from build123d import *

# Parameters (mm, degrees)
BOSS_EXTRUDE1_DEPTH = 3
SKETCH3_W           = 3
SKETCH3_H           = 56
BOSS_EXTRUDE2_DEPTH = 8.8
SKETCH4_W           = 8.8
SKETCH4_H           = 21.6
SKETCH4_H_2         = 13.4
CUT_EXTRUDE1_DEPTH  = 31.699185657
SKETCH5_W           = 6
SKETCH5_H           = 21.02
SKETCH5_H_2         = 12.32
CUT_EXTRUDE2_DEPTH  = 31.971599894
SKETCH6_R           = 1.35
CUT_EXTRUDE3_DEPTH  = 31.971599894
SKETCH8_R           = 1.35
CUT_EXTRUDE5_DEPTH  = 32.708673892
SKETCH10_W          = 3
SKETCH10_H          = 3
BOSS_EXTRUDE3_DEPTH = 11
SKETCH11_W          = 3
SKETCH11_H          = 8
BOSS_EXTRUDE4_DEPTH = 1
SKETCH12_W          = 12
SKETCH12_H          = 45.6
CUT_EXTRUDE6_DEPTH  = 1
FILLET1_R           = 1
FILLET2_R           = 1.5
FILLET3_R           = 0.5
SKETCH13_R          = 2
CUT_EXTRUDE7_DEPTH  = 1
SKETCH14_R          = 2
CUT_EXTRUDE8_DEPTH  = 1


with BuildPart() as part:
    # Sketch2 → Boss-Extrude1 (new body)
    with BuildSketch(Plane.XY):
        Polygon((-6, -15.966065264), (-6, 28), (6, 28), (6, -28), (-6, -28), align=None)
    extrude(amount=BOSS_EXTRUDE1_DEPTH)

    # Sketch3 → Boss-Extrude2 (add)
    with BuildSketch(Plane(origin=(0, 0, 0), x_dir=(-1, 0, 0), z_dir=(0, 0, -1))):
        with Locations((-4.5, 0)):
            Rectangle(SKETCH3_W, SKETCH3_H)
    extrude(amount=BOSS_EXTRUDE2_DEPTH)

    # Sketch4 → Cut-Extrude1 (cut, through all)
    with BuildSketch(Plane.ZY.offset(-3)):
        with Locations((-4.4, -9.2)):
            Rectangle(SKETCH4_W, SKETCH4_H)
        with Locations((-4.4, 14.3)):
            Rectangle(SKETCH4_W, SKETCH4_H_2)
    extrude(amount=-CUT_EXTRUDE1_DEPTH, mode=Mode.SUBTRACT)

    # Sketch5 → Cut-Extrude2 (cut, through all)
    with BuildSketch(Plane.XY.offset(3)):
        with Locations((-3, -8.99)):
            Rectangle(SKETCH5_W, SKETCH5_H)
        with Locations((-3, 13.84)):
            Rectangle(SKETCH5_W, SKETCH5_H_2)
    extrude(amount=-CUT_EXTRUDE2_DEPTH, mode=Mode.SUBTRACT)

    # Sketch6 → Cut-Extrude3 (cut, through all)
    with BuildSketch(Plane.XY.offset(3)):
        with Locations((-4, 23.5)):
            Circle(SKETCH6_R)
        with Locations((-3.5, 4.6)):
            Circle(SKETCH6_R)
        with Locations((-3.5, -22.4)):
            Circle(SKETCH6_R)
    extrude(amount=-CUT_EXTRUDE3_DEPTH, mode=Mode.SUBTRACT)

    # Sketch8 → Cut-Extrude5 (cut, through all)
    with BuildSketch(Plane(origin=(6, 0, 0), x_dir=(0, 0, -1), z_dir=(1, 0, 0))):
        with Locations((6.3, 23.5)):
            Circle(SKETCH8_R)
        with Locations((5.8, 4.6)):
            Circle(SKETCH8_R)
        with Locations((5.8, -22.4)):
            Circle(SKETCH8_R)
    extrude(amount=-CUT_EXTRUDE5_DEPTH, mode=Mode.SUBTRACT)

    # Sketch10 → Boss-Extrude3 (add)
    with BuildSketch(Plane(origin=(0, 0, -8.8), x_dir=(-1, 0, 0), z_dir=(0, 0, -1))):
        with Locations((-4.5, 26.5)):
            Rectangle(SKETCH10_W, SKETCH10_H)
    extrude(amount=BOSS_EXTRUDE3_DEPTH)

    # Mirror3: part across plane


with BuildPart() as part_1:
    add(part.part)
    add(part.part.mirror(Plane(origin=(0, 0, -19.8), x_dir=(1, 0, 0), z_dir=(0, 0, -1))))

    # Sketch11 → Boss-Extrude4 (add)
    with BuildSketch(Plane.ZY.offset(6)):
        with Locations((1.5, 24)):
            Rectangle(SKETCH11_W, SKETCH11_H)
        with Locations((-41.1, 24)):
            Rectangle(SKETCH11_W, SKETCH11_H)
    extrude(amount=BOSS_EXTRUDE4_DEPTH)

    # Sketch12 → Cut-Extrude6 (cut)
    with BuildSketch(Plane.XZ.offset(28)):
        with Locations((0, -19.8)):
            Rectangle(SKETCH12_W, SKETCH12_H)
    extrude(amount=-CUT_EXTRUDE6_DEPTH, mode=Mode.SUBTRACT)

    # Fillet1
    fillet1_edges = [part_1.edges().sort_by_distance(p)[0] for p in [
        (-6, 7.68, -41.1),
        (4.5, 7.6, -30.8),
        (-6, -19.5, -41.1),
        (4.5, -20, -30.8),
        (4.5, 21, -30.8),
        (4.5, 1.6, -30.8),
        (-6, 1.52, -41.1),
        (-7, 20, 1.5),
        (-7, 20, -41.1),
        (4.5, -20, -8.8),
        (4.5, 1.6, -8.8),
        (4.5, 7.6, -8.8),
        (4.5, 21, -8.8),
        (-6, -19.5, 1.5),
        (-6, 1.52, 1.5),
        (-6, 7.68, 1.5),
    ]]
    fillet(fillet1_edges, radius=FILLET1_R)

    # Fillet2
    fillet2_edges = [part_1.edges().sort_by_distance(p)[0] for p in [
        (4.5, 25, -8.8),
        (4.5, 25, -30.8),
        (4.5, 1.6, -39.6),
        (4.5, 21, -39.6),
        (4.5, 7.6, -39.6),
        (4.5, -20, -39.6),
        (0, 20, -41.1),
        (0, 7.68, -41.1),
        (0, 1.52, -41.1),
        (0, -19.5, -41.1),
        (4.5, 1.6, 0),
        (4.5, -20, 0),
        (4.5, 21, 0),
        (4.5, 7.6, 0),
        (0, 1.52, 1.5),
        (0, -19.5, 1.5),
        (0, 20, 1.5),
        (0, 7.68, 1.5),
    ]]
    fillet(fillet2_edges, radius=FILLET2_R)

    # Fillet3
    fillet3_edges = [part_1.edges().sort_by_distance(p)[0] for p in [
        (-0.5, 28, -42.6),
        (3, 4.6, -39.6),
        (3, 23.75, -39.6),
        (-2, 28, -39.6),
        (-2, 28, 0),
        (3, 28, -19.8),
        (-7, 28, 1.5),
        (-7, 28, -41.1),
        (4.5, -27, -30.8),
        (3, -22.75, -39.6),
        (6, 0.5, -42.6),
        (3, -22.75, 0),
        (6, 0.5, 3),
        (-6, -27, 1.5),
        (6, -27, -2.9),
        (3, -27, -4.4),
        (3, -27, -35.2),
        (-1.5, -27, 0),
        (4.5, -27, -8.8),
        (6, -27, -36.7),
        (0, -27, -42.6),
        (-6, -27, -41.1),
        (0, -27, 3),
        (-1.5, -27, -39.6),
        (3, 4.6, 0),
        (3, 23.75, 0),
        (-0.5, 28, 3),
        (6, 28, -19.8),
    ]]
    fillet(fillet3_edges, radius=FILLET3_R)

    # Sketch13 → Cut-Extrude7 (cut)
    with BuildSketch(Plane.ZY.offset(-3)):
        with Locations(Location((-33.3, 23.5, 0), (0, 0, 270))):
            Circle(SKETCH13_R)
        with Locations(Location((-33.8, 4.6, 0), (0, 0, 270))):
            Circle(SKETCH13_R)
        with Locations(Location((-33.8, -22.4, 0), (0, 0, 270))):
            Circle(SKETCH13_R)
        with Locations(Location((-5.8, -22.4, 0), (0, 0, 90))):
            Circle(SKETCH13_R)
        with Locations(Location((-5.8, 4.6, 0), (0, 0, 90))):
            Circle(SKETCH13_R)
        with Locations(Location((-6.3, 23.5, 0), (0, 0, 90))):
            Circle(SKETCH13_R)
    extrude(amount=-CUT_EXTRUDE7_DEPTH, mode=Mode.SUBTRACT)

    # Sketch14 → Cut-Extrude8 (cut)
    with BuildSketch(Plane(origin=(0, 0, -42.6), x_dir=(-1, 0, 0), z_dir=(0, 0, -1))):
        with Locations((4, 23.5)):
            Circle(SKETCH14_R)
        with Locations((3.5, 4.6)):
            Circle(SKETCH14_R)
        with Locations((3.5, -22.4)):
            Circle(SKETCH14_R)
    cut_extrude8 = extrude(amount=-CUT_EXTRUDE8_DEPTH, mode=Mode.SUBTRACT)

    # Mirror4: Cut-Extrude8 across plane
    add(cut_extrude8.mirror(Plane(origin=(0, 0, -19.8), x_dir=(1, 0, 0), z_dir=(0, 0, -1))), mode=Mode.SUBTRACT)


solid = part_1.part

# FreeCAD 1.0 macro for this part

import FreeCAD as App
import Part
import Sketcher


def edges_at(feature, points):
    """Names of the edges that pass closest to the given points."""
    edges = feature.Shape.Edges
    near = lambda p: min(range(len(edges)), key=lambda i: edges[i].distToShape(Part.Vertex(*p))[0])
    return sorted({f"Edge{near(p) + 1}" for p in points})

doc = App.newDocument("Part")
body = doc.addObject("PartDesign::Body", "Body")

# Sketch on XY plane
sketch1 = body.newObject("Sketcher::SketchObject", "Sketch")
sketch1.AttachmentSupport = (doc.getObject("XY_Plane"), [""])
sketch1.MapMode = "FlatFace"
sketch1.addGeometry([
    Part.LineSegment(App.Vector(-6, 28, 0), App.Vector(-6, -28, 0)),
    Part.LineSegment(App.Vector(-6, -28, 0), App.Vector(6, -28, 0)),
    Part.LineSegment(App.Vector(6, -28, 0), App.Vector(6, 28, 0)),
    Part.LineSegment(App.Vector(6, 28, 0), App.Vector(-6, 28, 0)),
], False)
sketch1.addConstraint([
    Sketcher.Constraint("Coincident", 0, 2, 1, 1),
    Sketcher.Constraint("Coincident", 1, 2, 2, 1),
    Sketcher.Constraint("Coincident", 2, 2, 3, 1),
    Sketcher.Constraint("Coincident", 3, 2, 0, 1),
    Sketcher.Constraint("Vertical", 0),
    Sketcher.Constraint("Horizontal", 1),
    Sketcher.Constraint("Vertical", 2),
    Sketcher.Constraint("Horizontal", 3),
    Sketcher.Constraint("Symmetric", 0, 2, 2, 2, -1, 1),
    Sketcher.Constraint("DistanceX", 1, 1, 1, 2, 12.0),
    Sketcher.Constraint("DistanceY", 0, 2, 0, 1, 56.0),
])
pad1 = body.newObject("PartDesign::Pad", "Pad")
pad1.Profile = sketch1
pad1.Length = 3

# Sketch on XY plane
sketch2 = body.newObject("Sketcher::SketchObject", "Sketch001")
sketch2.AttachmentSupport = (doc.getObject("XY_Plane"), [""])
sketch2.MapMode = "FlatFace"
sketch2.addGeometry([
    Part.LineSegment(App.Vector(6, 28, 0), App.Vector(6, -28, 0)),
    Part.LineSegment(App.Vector(6, -28, 0), App.Vector(3, -28, 0)),
    Part.LineSegment(App.Vector(3, -28, 0), App.Vector(3, 28, 0)),
    Part.LineSegment(App.Vector(3, 28, 0), App.Vector(6, 28, 0)),
], False)
sketch2.addConstraint([
    Sketcher.Constraint("Coincident", 0, 2, 1, 1),
    Sketcher.Constraint("Coincident", 1, 2, 2, 1),
    Sketcher.Constraint("Coincident", 2, 2, 3, 1),
    Sketcher.Constraint("Coincident", 3, 2, 0, 1),
    Sketcher.Constraint("Vertical", 0),
    Sketcher.Constraint("Horizontal", 1),
    Sketcher.Constraint("Vertical", 2),
    Sketcher.Constraint("Horizontal", 3),
    Sketcher.Constraint("DistanceX", 1, 2, 1, 1, 3.0),
    Sketcher.Constraint("DistanceY", 0, 2, 0, 1, 56.0),
    Sketcher.Constraint("DistanceX", -1, 1, 0, 2, 6.0),
    Sketcher.Constraint("DistanceY", 0, 2, -1, 1, 28.0),
])
pad2 = body.newObject("PartDesign::Pad", "Pad001")
pad2.Profile = sketch2
pad2.Length = 8.8
pad2.Reversed = True

# Sketch on YZ plane
sketch3 = body.newObject("Sketcher::SketchObject", "Sketch002")
sketch3.AttachmentSupport = (doc.getObject("YZ_Plane"), [""])
sketch3.MapMode = "FlatFace"
sketch3.AttachmentOffset = App.Placement(App.Vector(0, 0, 3), App.Rotation())
sketch3.addGeometry([
    Part.LineSegment(App.Vector(2, -9, 0), App.Vector(-20, -9, 0)),  # 0
    Part.LineSegment(App.Vector(-20, -9, 0), App.Vector(-20, 0, 0)),  # 1
    Part.LineSegment(App.Vector(-20, 0, 0), App.Vector(2, 0, 0)),  # 2
    Part.LineSegment(App.Vector(2, 0, 0), App.Vector(2, -9, 0)),  # 3
    Part.LineSegment(App.Vector(21, -9, 0), App.Vector(8, -9, 0)),  # 4
    Part.LineSegment(App.Vector(8, -9, 0), App.Vector(8, 0, 0)),  # 5
    Part.LineSegment(App.Vector(8, 0, 0), App.Vector(21, 0, 0)),  # 6
    Part.LineSegment(App.Vector(21, 0, 0), App.Vector(21, -9, 0)),  # 7
], False)
sketch3.addConstraint([
    Sketcher.Constraint("Coincident", 0, 2, 1, 1),
    Sketcher.Constraint("Coincident", 1, 2, 2, 1),
    Sketcher.Constraint("Coincident", 2, 2, 3, 1),
    Sketcher.Constraint("Coincident", 3, 2, 0, 1),
    Sketcher.Constraint("Coincident", 4, 2, 5, 1),
    Sketcher.Constraint("Coincident", 5, 2, 6, 1),
    Sketcher.Constraint("Coincident", 6, 2, 7, 1),
    Sketcher.Constraint("Coincident", 7, 2, 4, 1),
    Sketcher.Constraint("Horizontal", 0),
    Sketcher.Constraint("Vertical", 1),
    Sketcher.Constraint("Horizontal", 2),
    Sketcher.Constraint("Vertical", 3),
    Sketcher.Constraint("Horizontal", 4),
    Sketcher.Constraint("Vertical", 5),
    Sketcher.Constraint("Horizontal", 6),
    Sketcher.Constraint("Vertical", 7),
    Sketcher.Constraint("PointOnObject", 1, 2, -1),
    Sketcher.Constraint("PointOnObject", 5, 2, -1),
    Sketcher.Constraint("Horizontal", 3, 2, 4, 2),
    Sketcher.Constraint("DistanceX", 0, 2, 0, 1, 21.6),
    Sketcher.Constraint("DistanceX", 4, 2, 4, 1, 13.4),
    Sketcher.Constraint("DistanceY", 1, 1, 1, 2, 8.8),
    Sketcher.Constraint("DistanceX", 0, 2, -1, 1, 20.0),
    Sketcher.Constraint("DistanceX", -1, 1, 6, 2, 21.0),
])
pocket1 = body.newObject("PartDesign::Pocket", "Pocket")
pocket1.Profile = sketch3
pocket1.Type = "ThroughAll"
pocket1.Reversed = True

# Sketch on XY plane
sketch4 = body.newObject("Sketcher::SketchObject", "Sketch003")
sketch4.AttachmentSupport = (doc.getObject("XY_Plane"), [""])
sketch4.MapMode = "FlatFace"
sketch4.AttachmentOffset = App.Placement(App.Vector(0, 0, 3), App.Rotation())
sketch4.addGeometry([
    Part.LineSegment(App.Vector(-6, 2, 0), App.Vector(-6, -20, 0)),  # 0
    Part.LineSegment(App.Vector(-6, -20, 0), App.Vector(0, -20, 0)),  # 1
    Part.LineSegment(App.Vector(0, -20, 0), App.Vector(0, 2, 0)),  # 2
    Part.LineSegment(App.Vector(0, 2, 0), App.Vector(-6, 2, 0)),  # 3
    Part.LineSegment(App.Vector(-6, 20, 0), App.Vector(-6, 8, 0)),  # 4
    Part.LineSegment(App.Vector(-6, 8, 0), App.Vector(0, 8, 0)),  # 5
    Part.LineSegment(App.Vector(0, 8, 0), App.Vector(0, 20, 0)),  # 6
    Part.LineSegment(App.Vector(0, 20, 0), App.Vector(-6, 20, 0)),  # 7
], False)
sketch4.addConstraint([
    Sketcher.Constraint("Coincident", 0, 2, 1, 1),
    Sketcher.Constraint("Coincident", 1, 2, 2, 1),
    Sketcher.Constraint("Coincident", 2, 2, 3, 1),
    Sketcher.Constraint("Coincident", 3, 2, 0, 1),
    Sketcher.Constraint("Coincident", 4, 2, 5, 1),
    Sketcher.Constraint("Coincident", 5, 2, 6, 1),
    Sketcher.Constraint("Coincident", 6, 2, 7, 1),
    Sketcher.Constraint("Coincident", 7, 2, 4, 1),
    Sketcher.Constraint("Vertical", 0),
    Sketcher.Constraint("Horizontal", 1),
    Sketcher.Constraint("Vertical", 2),
    Sketcher.Constraint("Horizontal", 3),
    Sketcher.Constraint("Vertical", 4),
    Sketcher.Constraint("Horizontal", 5),
    Sketcher.Constraint("Vertical", 6),
    Sketcher.Constraint("Horizontal", 7),
    Sketcher.Constraint("PointOnObject", 1, 2, -2),
    Sketcher.Constraint("PointOnObject", 5, 2, -2),
    Sketcher.Constraint("Vertical", 3, 2, 4, 2),
    Sketcher.Constraint("DistanceX", 1, 1, 1, 2, 6.0),
    Sketcher.Constraint("DistanceY", -1, 1, 6, 2, 20.0),
    Sketcher.Constraint("DistanceY", 0, 2, 0, 1, 21.02),
    Sketcher.Constraint("DistanceY", 4, 2, 4, 1, 12.32),
    Sketcher.Constraint("DistanceY", 0, 2, -1, 1, 19.5),
])
pocket2 = body.newObject("PartDesign::Pocket", "Pocket001")
pocket2.Profile = sketch4
pocket2.Type = "ThroughAll"

# Sketch on XY plane
sketch5 = body.newObject("Sketcher::SketchObject", "Sketch004")
sketch5.AttachmentSupport = (doc.getObject("XY_Plane"), [""])
sketch5.MapMode = "FlatFace"
sketch5.AttachmentOffset = App.Placement(App.Vector(0, 0, 3), App.Rotation())
sketch5.addGeometry([
    Part.Circle(App.Vector(-4, 23.5, 0), App.Vector(0, 0, 1), 1.4),
    Part.Circle(App.Vector(-3.5, 4.6, 0), App.Vector(0, 0, 1), 1.4),
    Part.Circle(App.Vector(-3.5, -22.4, 0), App.Vector(0, 0, 1), 1.4),
], False)
sketch5.addConstraint([
    Sketcher.Constraint("Equal", 0, 1),
    Sketcher.Constraint("Equal", 1, 2),
    Sketcher.Constraint("Vertical", 1, 3, 2, 3),
    Sketcher.Constraint("Diameter", 0, 2.7),
    Sketcher.Constraint("DistanceX", 0, 3, -1, 1, 4.0),
    Sketcher.Constraint("DistanceY", 2, 3, 1, 3, 27.0),
    Sketcher.Constraint("DistanceY", -1, 1, 0, 3, 23.5),
    Sketcher.Constraint("DistanceX", 1, 3, -1, 1, 3.5),
    Sketcher.Constraint("DistanceY", -1, 1, 1, 3, 4.6),
])
pocket3 = body.newObject("PartDesign::Pocket", "Pocket002")
pocket3.Profile = sketch5
pocket3.Type = "ThroughAll"

# Sketch on YZ plane
sketch6 = body.newObject("Sketcher::SketchObject", "Sketch005")
sketch6.AttachmentSupport = (doc.getObject("YZ_Plane"), [""])
sketch6.MapMode = "FlatFace"
sketch6.AttachmentOffset = App.Placement(App.Vector(0, 0, 6), App.Rotation())
sketch6.addGeometry([
    Part.Circle(App.Vector(23.5, -6.3, 0), App.Vector(0, 0, 1), 1.4),
    Part.Circle(App.Vector(4.6, -5.8, 0), App.Vector(0, 0, 1), 1.4),
    Part.Circle(App.Vector(-22.4, -5.8, 0), App.Vector(0, 0, 1), 1.4),
], False)
sketch6.addConstraint([
    Sketcher.Constraint("Equal", 0, 1),
    Sketcher.Constraint("Equal", 1, 2),
    Sketcher.Constraint("Horizontal", 1, 3, 2, 3),
    Sketcher.Constraint("Diameter", 0, 2.7),
    Sketcher.Constraint("DistanceX", 2, 3, 1, 3, 27.0),
    Sketcher.Constraint("DistanceX", -1, 1, 0, 3, 23.5),
    Sketcher.Constraint("DistanceY", 0, 3, -1, 1, 6.3),
    Sketcher.Constraint("DistanceX", -1, 1, 1, 3, 4.6),
    Sketcher.Constraint("DistanceY", 1, 3, -1, 1, 5.8),
])
pocket4 = body.newObject("PartDesign::Pocket", "Pocket003")
pocket4.Profile = sketch6
pocket4.Type = "ThroughAll"

# Sketch on XY plane
sketch7 = body.newObject("Sketcher::SketchObject", "Sketch006")
sketch7.AttachmentSupport = (doc.getObject("XY_Plane"), [""])
sketch7.MapMode = "FlatFace"
sketch7.AttachmentOffset = App.Placement(App.Vector(0, 0, -8.8), App.Rotation())
sketch7.addGeometry([
    Part.LineSegment(App.Vector(6, 28, 0), App.Vector(6, 25, 0)),
    Part.LineSegment(App.Vector(6, 25, 0), App.Vector(3, 25, 0)),
    Part.LineSegment(App.Vector(3, 25, 0), App.Vector(3, 28, 0)),
    Part.LineSegment(App.Vector(3, 28, 0), App.Vector(6, 28, 0)),
], False)
sketch7.addConstraint([
    Sketcher.Constraint("Coincident", 0, 2, 1, 1),
    Sketcher.Constraint("Coincident", 1, 2, 2, 1),
    Sketcher.Constraint("Coincident", 2, 2, 3, 1),
    Sketcher.Constraint("Coincident", 3, 2, 0, 1),
    Sketcher.Constraint("Vertical", 0),
    Sketcher.Constraint("Horizontal", 1),
    Sketcher.Constraint("Vertical", 2),
    Sketcher.Constraint("Horizontal", 3),
    Sketcher.Constraint("Equal", 3, 0),
    Sketcher.Constraint("DistanceX", 1, 2, 1, 1, 3.0),
    Sketcher.Constraint("DistanceX", -1, 1, 0, 2, 6.0),
    Sketcher.Constraint("DistanceY", -1, 1, 0, 2, 25.0),
])
pad3 = body.newObject("PartDesign::Pad", "Pad002")
pad3.Profile = sketch7
pad3.Length = 11
pad3.Reversed = True
body2 = doc.addObject("PartDesign::Body", "Body001")
doc.recompute()

body2.BaseFeature = body
doc.recompute()

mirroring = doc.addObject("Part::Mirroring", "Mirroring")
mirroring.Source = body
mirroring.Base = App.Vector(0, 0, -19.8)
mirroring.Normal = App.Vector(0, 0, -1)
body3 = doc.addObject("PartDesign::Body", "Body002")
body3.BaseFeature = mirroring
boolean = body2.newObject("PartDesign::Boolean", "Boolean")
boolean.Type = "Fuse"
boolean.addObjects([body3])
doc.recompute()

# Sketch on YZ plane
sketch8 = body2.newObject("Sketcher::SketchObject", "Sketch007")
sketch8.AttachmentSupport = (doc.getObject("YZ_Plane001"), [""])
sketch8.MapMode = "FlatFace"
sketch8.AttachmentOffset = App.Placement(App.Vector(0, 0, -6), App.Rotation())
sketch8.addGeometry([
    Part.LineSegment(App.Vector(28, 0, 0), App.Vector(20, 0, 0)),  # 0
    Part.LineSegment(App.Vector(20, 0, 0), App.Vector(20, 3, 0)),  # 1
    Part.LineSegment(App.Vector(20, 3, 0), App.Vector(28, 3, 0)),  # 2
    Part.LineSegment(App.Vector(28, 3, 0), App.Vector(28, 0, 0)),  # 3
    Part.LineSegment(App.Vector(28, -42.6, 0), App.Vector(20, -42.6, 0)),  # 4
    Part.LineSegment(App.Vector(20, -42.6, 0), App.Vector(20, -39.6, 0)),  # 5
    Part.LineSegment(App.Vector(20, -39.6, 0), App.Vector(28, -39.6, 0)),  # 6
    Part.LineSegment(App.Vector(28, -39.6, 0), App.Vector(28, -42.6, 0)),  # 7
], False)
sketch8.addConstraint([
    Sketcher.Constraint("Coincident", 0, 2, 1, 1),
    Sketcher.Constraint("Coincident", 1, 2, 2, 1),
    Sketcher.Constraint("Coincident", 2, 2, 3, 1),
    Sketcher.Constraint("Coincident", 3, 2, 0, 1),
    Sketcher.Constraint("Coincident", 4, 2, 5, 1),
    Sketcher.Constraint("Coincident", 5, 2, 6, 1),
    Sketcher.Constraint("Coincident", 6, 2, 7, 1),
    Sketcher.Constraint("Coincident", 7, 2, 4, 1),
    Sketcher.Constraint("Horizontal", 0),
    Sketcher.Constraint("Vertical", 1),
    Sketcher.Constraint("Horizontal", 2),
    Sketcher.Constraint("Vertical", 3),
    Sketcher.Constraint("Horizontal", 4),
    Sketcher.Constraint("Vertical", 5),
    Sketcher.Constraint("Horizontal", 6),
    Sketcher.Constraint("Vertical", 7),
    Sketcher.Constraint("PointOnObject", 0, 2, -1),
    Sketcher.Constraint("Vertical", 1, 2, 4, 2),
    Sketcher.Constraint("Vertical", 3, 2, 6, 2),
    Sketcher.Constraint("Equal", 3, 5),
    Sketcher.Constraint("DistanceX", 0, 2, 0, 1, 8.0),
    Sketcher.Constraint("DistanceY", 1, 1, 1, 2, 3.0),
    Sketcher.Constraint("DistanceX", -1, 1, 0, 2, 20.0),
    Sketcher.Constraint("DistanceY", 4, 2, -1, 1, 42.6),
])
pad4 = body2.newObject("PartDesign::Pad", "Pad003")
pad4.Profile = sketch8
pad4.Length = 1
pad4.Reversed = True

# Sketch on XZ plane
sketch9 = body2.newObject("Sketcher::SketchObject", "Sketch008")
sketch9.AttachmentSupport = (doc.getObject("XZ_Plane001"), [""])
sketch9.MapMode = "FlatFace"
sketch9.AttachmentOffset = App.Placement(App.Vector(0, 0, 28), App.Rotation())
sketch9.addGeometry([
    Part.LineSegment(App.Vector(-6, 3, 0), App.Vector(-6, -43, 0)),
    Part.LineSegment(App.Vector(-6, -43, 0), App.Vector(6, -43, 0)),
    Part.LineSegment(App.Vector(6, -43, 0), App.Vector(6, 3, 0)),
    Part.LineSegment(App.Vector(6, 3, 0), App.Vector(-6, 3, 0)),
], False)
sketch9.addConstraint([
    Sketcher.Constraint("Coincident", 0, 2, 1, 1),
    Sketcher.Constraint("Coincident", 1, 2, 2, 1),
    Sketcher.Constraint("Coincident", 2, 2, 3, 1),
    Sketcher.Constraint("Coincident", 3, 2, 0, 1),
    Sketcher.Constraint("Vertical", 0),
    Sketcher.Constraint("Horizontal", 1),
    Sketcher.Constraint("Vertical", 2),
    Sketcher.Constraint("Horizontal", 3),
    Sketcher.Constraint("DistanceX", 1, 1, 1, 2, 12.0),
    Sketcher.Constraint("DistanceY", 0, 2, 0, 1, 45.6),
    Sketcher.Constraint("DistanceX", 0, 2, -1, 1, 6.0),
    Sketcher.Constraint("DistanceY", -1, 1, 2, 2, 3.0),
])
pocket5 = body2.newObject("PartDesign::Pocket", "Pocket004")
pocket5.Profile = sketch9
pocket5.Length = 1
doc.recompute()

fillet = body2.newObject("PartDesign::Fillet", "Fillet")
fillet.Base = (pocket5, edges_at(pocket5, [
    (-6, 7.68, -41.1),
    (4.5, 7.6, -30.8),
    (-6, -19.5, -41.1),
    (4.5, -20, -30.8),
    (4.5, 21, -30.8),
    (4.5, 1.6, -30.8),
    (-6, 1.52, -41.1),
    (-7, 20, 1.5),
    (-7, 20, -41.1),
    (4.5, -20, -8.8),
    (4.5, 1.6, -8.8),
    (4.5, 7.6, -8.8),
    (4.5, 21, -8.8),
    (-6, -19.5, 1.5),
    (-6, 1.52, 1.5),
    (-6, 7.68, 1.5),
]))
fillet.Radius = 1
doc.recompute()

fillet2 = body2.newObject("PartDesign::Fillet", "Fillet001")
fillet2.Base = (fillet, edges_at(fillet, [
    (4.5, 25, -8.8),
    (4.5, 25, -30.8),
    (4.5, 1.6, -39.6),
    (4.5, 21, -39.6),
    (4.5, 7.6, -39.6),
    (4.5, -20, -39.6),
    (0, 20, -41.1),
    (0, 7.68, -41.1),
    (0, 1.52, -41.1),
    (0, -19.5, -41.1),
    (4.5, 1.6, 0),
    (4.5, -20, 0),
    (4.5, 21, 0),
    (4.5, 7.6, 0),
    (0, 1.52, 1.5),
    (0, -19.5, 1.5),
    (0, 20, 1.5),
    (0, 7.68, 1.5),
]))
fillet2.Radius = 1.5
doc.recompute()

fillet3 = body2.newObject("PartDesign::Fillet", "Fillet002")
fillet3.Base = (fillet2, edges_at(fillet2, [
    (-0.5, 28, -42.6),
    (3, 4.6, -39.6),
    (3, 23.75, -39.6),
    (-2, 28, -39.6),
    (-2, 28, 0),
    (3, 28, -19.8),
    (-7, 28, 1.5),
    (-7, 28, -41.1),
    (4.5, -27, -30.8),
    (3, -22.75, -39.6),
    (6, 0.5, -42.6),
    (3, -22.75, 0),
    (6, 0.5, 3),
    (-6, -27, 1.5),
    (6, -27, -2.9),
    (3, -27, -4.4),
    (3, -27, -35.2),
    (-1.5, -27, 0),
    (4.5, -27, -8.8),
    (6, -27, -36.7),
    (0, -27, -42.6),
    (-6, -27, -41.1),
    (0, -27, 3),
    (-1.5, -27, -39.6),
    (3, 4.6, 0),
    (3, 23.75, 0),
    (-0.5, 28, 3),
    (6, 28, -19.8),
]))
fillet3.Radius = 0.5

# Sketch on YZ plane
sketch10 = body2.newObject("Sketcher::SketchObject", "Sketch009")
sketch10.AttachmentSupport = (doc.getObject("YZ_Plane001"), [""])
sketch10.MapMode = "FlatFace"
sketch10.AttachmentOffset = App.Placement(App.Vector(0, 0, 3), App.Rotation())
sketch10.addGeometry([
    Part.Circle(App.Vector(23.5, -33.3, 0), App.Vector(0, 0, 1), 2),  # 0
    Part.Circle(App.Vector(4.6, -33.8, 0), App.Vector(0, 0, 1), 2),  # 1
    Part.Circle(App.Vector(-22.4, -33.8, 0), App.Vector(0, 0, 1), 2),  # 2
    Part.Circle(App.Vector(-22.4, -5.8, 0), App.Vector(0, 0, 1), 2),  # 3
    Part.Circle(App.Vector(4.6, -5.8, 0), App.Vector(0, 0, 1), 2),  # 4
    Part.Circle(App.Vector(23.5, -6.3, 0), App.Vector(0, 0, 1), 2),  # 5
], False)
sketch10.addConstraint([
    Sketcher.Constraint("Equal", 0, 1),
    Sketcher.Constraint("Equal", 1, 2),
    Sketcher.Constraint("Equal", 2, 3),
    Sketcher.Constraint("Equal", 3, 4),
    Sketcher.Constraint("Equal", 4, 5),
    Sketcher.Constraint("Horizontal", 1, 3, 2, 3),
    Sketcher.Constraint("Horizontal", 3, 3, 4, 3),
    Sketcher.Constraint("Vertical", 2, 3, 3, 3),
    Sketcher.Constraint("Vertical", 1, 3, 4, 3),
    Sketcher.Constraint("Vertical", 0, 3, 5, 3),
    Sketcher.Constraint("Diameter", 0, 4.0),
    Sketcher.Constraint("DistanceX", 2, 3, 1, 3, 27.0),
    Sketcher.Constraint("DistanceY", 2, 3, 3, 3, 28.0),
    Sketcher.Constraint("DistanceY", 0, 3, 5, 3, 27.0),
    Sketcher.Constraint("DistanceX", -1, 1, 0, 3, 23.5),
    Sketcher.Constraint("DistanceY", 0, 3, -1, 1, 33.3),
    Sketcher.Constraint("DistanceX", -1, 1, 1, 3, 4.6),
    Sketcher.Constraint("DistanceY", 1, 3, -1, 1, 33.8),
])
pocket6 = body2.newObject("PartDesign::Pocket", "Pocket005")
pocket6.Profile = sketch10
pocket6.Length = 1
pocket6.Reversed = True

# Sketch on XY plane
sketch11 = body2.newObject("Sketcher::SketchObject", "Sketch010")
sketch11.AttachmentSupport = (doc.getObject("XY_Plane001"), [""])
sketch11.MapMode = "FlatFace"
sketch11.AttachmentOffset = App.Placement(App.Vector(0, 0, -42.6), App.Rotation())
sketch11.addGeometry([
    Part.Circle(App.Vector(-4, 23.5, 0), App.Vector(0, 0, 1), 2),
    Part.Circle(App.Vector(-3.5, 4.6, 0), App.Vector(0, 0, 1), 2),
    Part.Circle(App.Vector(-3.5, -22.4, 0), App.Vector(0, 0, 1), 2),
], False)
sketch11.addConstraint([
    Sketcher.Constraint("Equal", 0, 1),
    Sketcher.Constraint("Equal", 1, 2),
    Sketcher.Constraint("Vertical", 1, 3, 2, 3),
    Sketcher.Constraint("Diameter", 0, 4.0),
    Sketcher.Constraint("DistanceX", 0, 3, -1, 1, 4.0),
    Sketcher.Constraint("DistanceY", 2, 3, 1, 3, 27.0),
    Sketcher.Constraint("DistanceY", -1, 1, 0, 3, 23.5),
    Sketcher.Constraint("DistanceX", 1, 3, -1, 1, 3.5),
    Sketcher.Constraint("DistanceY", -1, 1, 1, 3, 4.6),
])
pocket7 = body2.newObject("PartDesign::Pocket", "Pocket006")
pocket7.Profile = sketch11
pocket7.Length = 1
pocket7.Reversed = True
doc.recompute()

datumplane = body2.newObject("PartDesign::Plane", "DatumPlane")
datumplane.AttachmentSupport = (doc.getObject("XY_Plane001"), [""])
datumplane.MapMode = "FlatFace"
datumplane.AttachmentOffset = App.Placement(App.Vector(0, 0, -19.8), App.Rotation())
mirrored = body2.newObject("PartDesign::Mirrored", "Mirrored")
mirrored.Originals = [pocket7]
mirrored.MirrorPlane = (datumplane, [""])
body2.Tip = mirrored
mirroring.Visibility = False

doc.recompute()
